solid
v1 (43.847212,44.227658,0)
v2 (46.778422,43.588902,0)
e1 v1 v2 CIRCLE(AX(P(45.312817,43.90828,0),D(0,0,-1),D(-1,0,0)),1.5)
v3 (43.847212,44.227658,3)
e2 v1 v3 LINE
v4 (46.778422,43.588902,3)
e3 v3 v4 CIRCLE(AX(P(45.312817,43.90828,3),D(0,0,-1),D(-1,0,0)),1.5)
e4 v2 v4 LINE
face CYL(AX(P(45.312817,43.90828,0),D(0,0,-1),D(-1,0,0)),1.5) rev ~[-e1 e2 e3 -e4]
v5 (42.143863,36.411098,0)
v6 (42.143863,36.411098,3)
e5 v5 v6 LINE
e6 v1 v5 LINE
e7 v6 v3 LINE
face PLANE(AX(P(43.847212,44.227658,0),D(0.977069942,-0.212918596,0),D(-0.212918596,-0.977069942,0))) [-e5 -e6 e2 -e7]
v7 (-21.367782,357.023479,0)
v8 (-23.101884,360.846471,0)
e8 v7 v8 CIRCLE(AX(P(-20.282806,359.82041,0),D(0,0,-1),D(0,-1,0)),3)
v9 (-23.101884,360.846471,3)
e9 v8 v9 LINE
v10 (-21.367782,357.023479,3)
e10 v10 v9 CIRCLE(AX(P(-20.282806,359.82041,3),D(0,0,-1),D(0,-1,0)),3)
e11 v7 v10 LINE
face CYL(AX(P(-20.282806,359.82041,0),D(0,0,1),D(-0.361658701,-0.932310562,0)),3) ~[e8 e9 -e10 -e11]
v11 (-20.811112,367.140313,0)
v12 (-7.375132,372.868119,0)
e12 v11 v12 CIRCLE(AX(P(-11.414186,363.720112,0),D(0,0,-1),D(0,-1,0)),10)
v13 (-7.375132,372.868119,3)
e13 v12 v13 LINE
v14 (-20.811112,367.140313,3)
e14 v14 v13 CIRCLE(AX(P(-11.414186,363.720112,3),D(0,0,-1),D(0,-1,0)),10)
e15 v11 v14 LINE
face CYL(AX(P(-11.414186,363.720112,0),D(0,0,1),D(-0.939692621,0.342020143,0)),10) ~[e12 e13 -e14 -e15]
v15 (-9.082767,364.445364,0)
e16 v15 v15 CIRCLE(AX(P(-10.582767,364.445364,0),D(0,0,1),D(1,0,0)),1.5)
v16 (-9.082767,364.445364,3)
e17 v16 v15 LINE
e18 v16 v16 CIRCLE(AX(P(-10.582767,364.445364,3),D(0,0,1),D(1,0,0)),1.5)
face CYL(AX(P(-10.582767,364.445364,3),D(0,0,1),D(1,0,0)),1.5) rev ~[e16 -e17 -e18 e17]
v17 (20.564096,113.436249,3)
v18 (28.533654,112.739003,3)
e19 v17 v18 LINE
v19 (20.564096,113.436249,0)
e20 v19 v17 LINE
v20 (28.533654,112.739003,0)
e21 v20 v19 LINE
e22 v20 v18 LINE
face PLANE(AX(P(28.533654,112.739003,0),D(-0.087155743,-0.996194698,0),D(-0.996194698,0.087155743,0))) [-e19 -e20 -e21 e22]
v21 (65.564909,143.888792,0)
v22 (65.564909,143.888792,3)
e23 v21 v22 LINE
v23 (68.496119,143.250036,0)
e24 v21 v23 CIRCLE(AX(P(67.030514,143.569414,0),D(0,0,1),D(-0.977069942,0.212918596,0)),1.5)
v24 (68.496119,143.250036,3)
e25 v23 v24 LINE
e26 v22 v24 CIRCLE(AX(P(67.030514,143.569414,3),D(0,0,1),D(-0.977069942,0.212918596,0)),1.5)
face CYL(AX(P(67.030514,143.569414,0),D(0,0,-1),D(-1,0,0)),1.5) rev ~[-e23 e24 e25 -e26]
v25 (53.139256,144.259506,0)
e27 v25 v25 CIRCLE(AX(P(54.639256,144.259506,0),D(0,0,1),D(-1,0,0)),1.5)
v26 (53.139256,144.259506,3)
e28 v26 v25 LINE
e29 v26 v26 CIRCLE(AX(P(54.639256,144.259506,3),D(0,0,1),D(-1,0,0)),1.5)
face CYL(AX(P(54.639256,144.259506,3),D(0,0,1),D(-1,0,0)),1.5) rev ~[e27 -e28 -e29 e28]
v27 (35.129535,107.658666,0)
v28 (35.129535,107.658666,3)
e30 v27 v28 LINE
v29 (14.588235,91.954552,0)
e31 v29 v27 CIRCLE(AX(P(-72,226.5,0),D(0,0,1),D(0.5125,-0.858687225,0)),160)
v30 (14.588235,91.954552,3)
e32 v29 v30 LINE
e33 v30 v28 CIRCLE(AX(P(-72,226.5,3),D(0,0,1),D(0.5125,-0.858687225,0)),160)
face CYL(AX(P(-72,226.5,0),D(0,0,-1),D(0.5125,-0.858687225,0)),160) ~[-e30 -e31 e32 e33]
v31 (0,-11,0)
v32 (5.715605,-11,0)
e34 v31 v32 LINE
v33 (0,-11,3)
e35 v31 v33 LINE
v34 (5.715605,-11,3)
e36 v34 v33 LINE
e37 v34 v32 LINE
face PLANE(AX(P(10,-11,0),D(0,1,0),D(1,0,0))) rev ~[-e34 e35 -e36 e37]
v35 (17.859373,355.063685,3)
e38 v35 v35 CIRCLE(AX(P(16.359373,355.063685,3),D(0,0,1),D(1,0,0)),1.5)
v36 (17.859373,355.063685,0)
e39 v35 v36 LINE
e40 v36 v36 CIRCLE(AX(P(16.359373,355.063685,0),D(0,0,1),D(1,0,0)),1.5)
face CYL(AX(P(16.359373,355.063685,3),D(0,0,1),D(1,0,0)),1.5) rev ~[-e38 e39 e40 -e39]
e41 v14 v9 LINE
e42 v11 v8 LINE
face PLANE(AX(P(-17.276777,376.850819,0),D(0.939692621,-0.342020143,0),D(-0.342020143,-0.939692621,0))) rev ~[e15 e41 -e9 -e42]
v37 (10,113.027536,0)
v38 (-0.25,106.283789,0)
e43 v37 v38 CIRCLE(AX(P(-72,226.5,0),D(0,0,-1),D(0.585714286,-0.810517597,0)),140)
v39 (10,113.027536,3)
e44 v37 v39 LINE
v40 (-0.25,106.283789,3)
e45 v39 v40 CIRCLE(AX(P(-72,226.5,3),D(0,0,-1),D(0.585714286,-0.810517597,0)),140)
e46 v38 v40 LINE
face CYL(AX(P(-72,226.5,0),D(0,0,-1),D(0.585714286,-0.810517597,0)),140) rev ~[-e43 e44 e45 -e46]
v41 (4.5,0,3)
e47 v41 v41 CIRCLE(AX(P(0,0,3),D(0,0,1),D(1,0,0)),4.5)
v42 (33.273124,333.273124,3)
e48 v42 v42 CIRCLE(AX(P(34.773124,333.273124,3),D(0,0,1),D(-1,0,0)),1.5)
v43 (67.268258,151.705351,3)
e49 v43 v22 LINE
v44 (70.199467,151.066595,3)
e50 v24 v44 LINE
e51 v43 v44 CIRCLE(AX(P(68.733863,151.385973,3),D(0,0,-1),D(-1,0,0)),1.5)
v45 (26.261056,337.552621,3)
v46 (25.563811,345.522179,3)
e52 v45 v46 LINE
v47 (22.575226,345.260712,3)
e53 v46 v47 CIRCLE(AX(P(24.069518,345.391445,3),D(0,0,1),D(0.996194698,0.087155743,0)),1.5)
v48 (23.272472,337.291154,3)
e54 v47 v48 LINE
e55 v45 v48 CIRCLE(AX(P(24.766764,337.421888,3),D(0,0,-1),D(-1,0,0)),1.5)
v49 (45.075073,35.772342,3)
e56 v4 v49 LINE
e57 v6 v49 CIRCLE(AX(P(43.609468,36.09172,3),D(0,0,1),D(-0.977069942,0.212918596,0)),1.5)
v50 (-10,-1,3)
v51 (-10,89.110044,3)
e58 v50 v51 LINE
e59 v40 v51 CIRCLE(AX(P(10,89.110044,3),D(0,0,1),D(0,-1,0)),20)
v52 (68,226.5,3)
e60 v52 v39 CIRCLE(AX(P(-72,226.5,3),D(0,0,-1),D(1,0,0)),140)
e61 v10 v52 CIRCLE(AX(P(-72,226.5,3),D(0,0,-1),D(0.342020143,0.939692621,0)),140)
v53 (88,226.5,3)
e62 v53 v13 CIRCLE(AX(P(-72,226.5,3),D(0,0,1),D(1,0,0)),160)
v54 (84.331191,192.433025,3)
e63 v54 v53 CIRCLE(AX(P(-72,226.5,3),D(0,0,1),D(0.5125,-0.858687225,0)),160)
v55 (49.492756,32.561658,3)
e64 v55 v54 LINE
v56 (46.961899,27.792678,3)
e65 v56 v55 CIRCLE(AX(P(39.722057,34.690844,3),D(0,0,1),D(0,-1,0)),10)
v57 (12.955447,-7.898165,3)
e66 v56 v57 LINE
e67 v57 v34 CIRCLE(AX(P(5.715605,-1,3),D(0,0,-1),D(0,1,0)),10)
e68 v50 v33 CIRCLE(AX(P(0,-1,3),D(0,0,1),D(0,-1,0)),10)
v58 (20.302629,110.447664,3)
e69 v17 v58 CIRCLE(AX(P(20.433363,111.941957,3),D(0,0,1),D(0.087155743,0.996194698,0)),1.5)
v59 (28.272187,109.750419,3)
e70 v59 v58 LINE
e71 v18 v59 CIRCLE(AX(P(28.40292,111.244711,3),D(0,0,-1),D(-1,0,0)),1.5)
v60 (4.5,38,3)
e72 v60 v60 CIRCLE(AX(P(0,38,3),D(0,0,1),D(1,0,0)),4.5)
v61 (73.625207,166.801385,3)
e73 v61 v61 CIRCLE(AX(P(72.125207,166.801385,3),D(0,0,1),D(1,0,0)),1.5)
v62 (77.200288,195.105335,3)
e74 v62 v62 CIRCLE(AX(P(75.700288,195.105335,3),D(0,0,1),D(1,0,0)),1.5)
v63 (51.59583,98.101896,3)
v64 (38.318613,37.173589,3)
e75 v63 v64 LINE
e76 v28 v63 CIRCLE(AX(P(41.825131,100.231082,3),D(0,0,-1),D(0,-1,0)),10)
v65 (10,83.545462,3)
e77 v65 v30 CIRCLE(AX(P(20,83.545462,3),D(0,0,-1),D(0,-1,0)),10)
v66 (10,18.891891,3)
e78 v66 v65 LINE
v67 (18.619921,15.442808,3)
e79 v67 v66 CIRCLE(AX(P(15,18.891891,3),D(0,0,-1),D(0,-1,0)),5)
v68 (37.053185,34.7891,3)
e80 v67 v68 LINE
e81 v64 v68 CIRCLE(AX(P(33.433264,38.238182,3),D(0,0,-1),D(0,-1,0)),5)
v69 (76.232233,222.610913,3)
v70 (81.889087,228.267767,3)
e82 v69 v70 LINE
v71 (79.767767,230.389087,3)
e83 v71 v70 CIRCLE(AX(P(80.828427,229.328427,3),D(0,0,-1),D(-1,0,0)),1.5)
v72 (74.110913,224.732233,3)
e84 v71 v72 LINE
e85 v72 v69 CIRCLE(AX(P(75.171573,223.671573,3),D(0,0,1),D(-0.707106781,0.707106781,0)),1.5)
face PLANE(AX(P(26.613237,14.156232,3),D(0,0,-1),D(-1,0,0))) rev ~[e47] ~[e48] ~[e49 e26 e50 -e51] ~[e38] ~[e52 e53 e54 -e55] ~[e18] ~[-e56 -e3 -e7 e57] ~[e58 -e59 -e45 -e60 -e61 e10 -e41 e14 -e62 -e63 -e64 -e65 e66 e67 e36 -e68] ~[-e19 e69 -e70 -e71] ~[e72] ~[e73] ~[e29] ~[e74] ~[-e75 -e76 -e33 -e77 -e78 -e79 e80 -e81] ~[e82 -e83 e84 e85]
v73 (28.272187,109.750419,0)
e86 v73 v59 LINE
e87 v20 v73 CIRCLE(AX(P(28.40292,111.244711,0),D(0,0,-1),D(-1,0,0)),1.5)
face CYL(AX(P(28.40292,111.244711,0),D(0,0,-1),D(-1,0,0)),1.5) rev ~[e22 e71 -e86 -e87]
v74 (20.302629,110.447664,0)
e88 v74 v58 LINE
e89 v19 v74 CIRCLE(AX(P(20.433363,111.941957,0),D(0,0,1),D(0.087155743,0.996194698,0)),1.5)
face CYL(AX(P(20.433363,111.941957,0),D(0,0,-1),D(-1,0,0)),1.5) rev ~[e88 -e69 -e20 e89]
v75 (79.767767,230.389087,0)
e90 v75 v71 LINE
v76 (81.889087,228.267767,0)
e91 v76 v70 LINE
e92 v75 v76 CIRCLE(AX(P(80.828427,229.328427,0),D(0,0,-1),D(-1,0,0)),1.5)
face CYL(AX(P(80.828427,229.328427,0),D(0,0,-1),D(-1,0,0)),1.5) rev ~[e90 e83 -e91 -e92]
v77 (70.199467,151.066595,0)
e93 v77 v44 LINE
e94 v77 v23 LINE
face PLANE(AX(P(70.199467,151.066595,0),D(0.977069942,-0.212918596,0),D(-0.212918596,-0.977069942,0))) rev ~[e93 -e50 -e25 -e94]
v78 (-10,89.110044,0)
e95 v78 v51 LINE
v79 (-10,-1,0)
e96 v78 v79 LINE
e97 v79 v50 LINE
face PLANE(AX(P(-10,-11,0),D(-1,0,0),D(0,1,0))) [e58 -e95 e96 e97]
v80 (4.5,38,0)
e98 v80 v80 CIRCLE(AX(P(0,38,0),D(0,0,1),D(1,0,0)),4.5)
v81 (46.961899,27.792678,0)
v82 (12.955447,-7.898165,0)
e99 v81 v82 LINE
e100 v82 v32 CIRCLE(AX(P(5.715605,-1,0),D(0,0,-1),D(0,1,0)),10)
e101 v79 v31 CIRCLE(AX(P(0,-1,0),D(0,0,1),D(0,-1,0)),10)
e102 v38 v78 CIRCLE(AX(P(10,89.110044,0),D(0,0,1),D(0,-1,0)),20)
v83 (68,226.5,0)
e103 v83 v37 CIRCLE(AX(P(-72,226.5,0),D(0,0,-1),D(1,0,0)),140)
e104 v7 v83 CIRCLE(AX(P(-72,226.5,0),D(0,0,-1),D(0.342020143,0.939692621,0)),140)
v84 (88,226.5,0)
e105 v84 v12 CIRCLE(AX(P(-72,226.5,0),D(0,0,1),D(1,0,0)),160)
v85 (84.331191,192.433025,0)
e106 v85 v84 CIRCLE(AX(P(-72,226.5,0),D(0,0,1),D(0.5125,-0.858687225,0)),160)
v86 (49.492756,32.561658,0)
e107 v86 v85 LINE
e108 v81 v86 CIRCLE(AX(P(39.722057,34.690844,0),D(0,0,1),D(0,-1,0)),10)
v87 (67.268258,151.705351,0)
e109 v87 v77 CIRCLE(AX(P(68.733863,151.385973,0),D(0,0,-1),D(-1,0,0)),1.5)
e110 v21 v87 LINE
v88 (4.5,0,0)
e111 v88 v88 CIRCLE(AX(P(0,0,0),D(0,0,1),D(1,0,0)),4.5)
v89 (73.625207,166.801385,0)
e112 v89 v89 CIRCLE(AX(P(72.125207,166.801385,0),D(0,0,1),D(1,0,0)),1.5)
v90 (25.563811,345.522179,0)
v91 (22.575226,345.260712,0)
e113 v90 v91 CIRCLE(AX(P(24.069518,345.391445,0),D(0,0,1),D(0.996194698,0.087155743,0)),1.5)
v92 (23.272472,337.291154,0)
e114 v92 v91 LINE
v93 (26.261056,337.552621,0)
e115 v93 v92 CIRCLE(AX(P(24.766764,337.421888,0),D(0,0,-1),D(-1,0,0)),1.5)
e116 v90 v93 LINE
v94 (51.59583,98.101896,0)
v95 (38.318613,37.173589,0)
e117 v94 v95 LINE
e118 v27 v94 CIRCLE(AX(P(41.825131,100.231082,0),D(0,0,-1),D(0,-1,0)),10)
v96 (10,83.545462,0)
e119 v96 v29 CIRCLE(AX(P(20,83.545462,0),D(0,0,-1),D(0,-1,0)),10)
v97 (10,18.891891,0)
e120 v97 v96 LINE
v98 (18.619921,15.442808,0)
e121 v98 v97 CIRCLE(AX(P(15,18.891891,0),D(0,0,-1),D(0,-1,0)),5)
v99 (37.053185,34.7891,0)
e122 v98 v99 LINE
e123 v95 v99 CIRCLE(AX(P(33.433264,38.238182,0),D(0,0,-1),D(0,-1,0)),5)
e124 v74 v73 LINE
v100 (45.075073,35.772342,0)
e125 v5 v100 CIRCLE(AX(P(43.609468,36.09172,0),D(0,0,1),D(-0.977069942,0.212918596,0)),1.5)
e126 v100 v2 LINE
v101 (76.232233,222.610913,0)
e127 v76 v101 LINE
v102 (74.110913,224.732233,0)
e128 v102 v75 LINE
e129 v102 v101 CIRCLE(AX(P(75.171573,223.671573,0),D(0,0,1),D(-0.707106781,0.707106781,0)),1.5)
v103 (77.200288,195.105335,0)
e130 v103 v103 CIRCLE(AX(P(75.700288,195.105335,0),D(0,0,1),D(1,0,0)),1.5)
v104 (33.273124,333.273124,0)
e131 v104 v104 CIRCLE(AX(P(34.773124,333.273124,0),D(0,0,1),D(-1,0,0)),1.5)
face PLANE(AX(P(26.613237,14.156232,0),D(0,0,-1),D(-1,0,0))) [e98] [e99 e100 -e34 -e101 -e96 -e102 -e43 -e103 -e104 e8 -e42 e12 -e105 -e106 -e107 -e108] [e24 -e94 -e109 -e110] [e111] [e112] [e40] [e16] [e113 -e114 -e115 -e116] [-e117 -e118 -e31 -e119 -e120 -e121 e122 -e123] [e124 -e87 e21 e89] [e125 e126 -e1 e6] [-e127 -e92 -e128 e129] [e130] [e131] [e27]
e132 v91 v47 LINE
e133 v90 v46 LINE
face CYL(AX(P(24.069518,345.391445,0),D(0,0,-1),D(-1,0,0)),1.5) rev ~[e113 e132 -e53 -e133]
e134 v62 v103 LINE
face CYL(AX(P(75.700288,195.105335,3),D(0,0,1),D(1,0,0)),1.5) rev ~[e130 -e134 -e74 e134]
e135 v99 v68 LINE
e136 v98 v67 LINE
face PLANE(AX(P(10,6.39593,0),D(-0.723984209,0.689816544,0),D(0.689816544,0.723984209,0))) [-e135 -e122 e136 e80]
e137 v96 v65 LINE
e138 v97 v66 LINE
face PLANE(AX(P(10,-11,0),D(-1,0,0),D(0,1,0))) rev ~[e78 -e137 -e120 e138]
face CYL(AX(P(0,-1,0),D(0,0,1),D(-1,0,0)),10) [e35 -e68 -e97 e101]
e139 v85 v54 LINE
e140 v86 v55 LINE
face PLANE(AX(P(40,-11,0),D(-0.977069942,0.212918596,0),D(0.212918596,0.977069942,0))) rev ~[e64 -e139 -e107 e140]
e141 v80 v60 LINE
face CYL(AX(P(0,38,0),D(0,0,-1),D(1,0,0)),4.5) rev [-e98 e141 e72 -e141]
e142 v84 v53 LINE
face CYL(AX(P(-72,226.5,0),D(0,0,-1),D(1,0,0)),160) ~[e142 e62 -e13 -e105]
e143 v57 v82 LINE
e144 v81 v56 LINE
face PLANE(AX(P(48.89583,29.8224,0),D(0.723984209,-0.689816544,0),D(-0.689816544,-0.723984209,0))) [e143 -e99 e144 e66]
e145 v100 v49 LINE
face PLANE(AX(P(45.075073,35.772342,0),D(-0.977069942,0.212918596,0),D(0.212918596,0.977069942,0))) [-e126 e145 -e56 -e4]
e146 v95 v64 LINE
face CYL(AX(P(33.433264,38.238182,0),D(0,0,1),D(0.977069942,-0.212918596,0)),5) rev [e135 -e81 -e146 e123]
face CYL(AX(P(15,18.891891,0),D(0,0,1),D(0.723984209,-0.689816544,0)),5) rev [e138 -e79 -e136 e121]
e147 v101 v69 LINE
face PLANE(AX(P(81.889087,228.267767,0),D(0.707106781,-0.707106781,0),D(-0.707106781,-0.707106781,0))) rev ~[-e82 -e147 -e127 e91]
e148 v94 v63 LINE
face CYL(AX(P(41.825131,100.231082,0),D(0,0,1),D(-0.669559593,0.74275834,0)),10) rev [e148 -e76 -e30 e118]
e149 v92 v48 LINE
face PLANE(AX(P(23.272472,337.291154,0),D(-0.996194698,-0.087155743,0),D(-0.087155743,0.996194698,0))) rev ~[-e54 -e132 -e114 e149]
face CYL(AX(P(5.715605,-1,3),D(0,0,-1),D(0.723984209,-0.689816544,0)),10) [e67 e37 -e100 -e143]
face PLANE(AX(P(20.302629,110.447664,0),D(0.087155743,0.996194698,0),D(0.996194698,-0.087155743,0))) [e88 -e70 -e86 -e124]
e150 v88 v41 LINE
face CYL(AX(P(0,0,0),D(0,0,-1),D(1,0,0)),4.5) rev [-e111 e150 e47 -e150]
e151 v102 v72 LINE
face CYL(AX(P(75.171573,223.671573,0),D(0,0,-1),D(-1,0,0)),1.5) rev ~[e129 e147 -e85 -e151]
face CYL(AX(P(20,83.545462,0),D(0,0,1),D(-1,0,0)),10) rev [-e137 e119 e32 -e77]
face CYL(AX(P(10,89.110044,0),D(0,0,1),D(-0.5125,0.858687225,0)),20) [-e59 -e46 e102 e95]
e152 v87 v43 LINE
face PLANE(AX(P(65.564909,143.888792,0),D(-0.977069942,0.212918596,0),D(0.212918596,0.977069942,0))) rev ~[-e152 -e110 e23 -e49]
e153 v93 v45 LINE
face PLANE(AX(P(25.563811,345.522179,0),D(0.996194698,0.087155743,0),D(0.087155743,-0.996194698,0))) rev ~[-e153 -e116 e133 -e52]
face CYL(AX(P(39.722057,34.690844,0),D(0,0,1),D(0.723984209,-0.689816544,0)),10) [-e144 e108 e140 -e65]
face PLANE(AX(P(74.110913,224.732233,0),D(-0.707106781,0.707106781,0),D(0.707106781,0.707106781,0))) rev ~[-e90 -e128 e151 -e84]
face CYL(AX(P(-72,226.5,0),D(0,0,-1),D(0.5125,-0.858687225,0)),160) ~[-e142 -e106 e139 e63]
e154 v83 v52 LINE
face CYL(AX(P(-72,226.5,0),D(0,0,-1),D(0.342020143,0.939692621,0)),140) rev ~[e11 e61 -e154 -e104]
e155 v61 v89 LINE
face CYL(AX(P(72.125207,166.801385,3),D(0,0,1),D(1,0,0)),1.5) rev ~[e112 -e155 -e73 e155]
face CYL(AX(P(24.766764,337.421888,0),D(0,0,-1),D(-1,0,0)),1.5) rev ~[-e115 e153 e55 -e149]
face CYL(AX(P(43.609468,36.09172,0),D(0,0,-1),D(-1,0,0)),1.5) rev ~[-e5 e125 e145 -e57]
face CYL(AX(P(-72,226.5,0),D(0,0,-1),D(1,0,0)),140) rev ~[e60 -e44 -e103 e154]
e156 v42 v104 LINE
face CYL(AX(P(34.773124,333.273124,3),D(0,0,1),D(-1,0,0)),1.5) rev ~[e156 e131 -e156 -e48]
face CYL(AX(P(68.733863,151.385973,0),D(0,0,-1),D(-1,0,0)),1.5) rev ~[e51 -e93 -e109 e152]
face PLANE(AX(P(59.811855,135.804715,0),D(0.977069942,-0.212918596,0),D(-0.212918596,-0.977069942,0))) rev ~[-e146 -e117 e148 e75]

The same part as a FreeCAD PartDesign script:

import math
import FreeCAD as App
import Part
import Sketcher

V = App.Vector
Q = App.Units.Quantity


def edges_at(feature, points):
    """Names of the edges that pass closest to the given points."""
    edges = feature.Shape.Edges
    near = lambda p: min(range(len(edges)), key=lambda i: edges[i].distToShape(Part.Vertex(*p))[0])
    return sorted({f"Edge{near(p) + 1}" for p in points})


def add_polygon(sketch, points):
    """Adds a closed chain of lines whose ends are joined by coincident constraints."""
    first, n = sketch.GeometryCount, len(points)
    for a, b in zip(points, points[1:] + points[:1]):
        sketch.addGeometry(Part.LineSegment(App.Vector(*a, 0), App.Vector(*b, 0)), False)
    for i in range(n):
        sketch.addConstraint(Sketcher.Constraint("Coincident", first + i, 2, first + (i + 1) % n, 1))

doc = App.newDocument("Part")
body = doc.addObject("PartDesign::Body", "Body")

# Sketch on XY plane
sketch1 = body.newObject("Sketcher::SketchObject", "Sketch")
sketch1.AttachmentSupport = (doc.getObject("XY_Plane"), [""])
sketch1.MapMode = "FlatFace"
sketch1.addGeometry(Part.ArcOfCircle(Part.Circle(V(-72, 226.5, 0), V(0, 0, 1), 160), math.radians(0), math.radians(70)), False)
sketch1.addGeometry(Part.LineSegment(V(-17.3, 376.9, 0), V(-24.1, 358.1, 0)), False)
sketch1.addGeometry(Part.ArcOfCircle(Part.Circle(V(-72, 226.5, 0), V(0, 0, 1), 140), math.radians(0), math.radians(70)), False)
sketch1.addGeometry(Part.ArcOfCircle(Part.Circle(V(-72, 226.5, 0), V(0, 0, 1), 140), math.radians(-54), math.radians(0)), False)
sketch1.addGeometry(Part.ArcOfCircle(Part.Circle(V(-72, 226.5, 0), V(0, 0, 1), 140), math.radians(-63.71), math.radians(-54.15)), False)
sketch1.addGeometry(Part.LineSegment(V(-10, 101, 0), V(-10, -11, 0)), False)
sketch1.addGeometry(Part.LineSegment(V(-10, -11, 0), V(10, -11, 0)), False)
sketch1.addGeometry(Part.LineSegment(V(10, -11, 0), V(10, 89.1, 0)), False)
sketch1.addGeometry(Part.ArcOfCircle(Part.Circle(V(-72, 226.5, 0), V(0, 0, 1), 160), math.radians(-59), math.radians(0)), False)
sketch1.addGeometry(Part.Circle(V(0, 38, 0), V(0, 0, 1), 4.5), False)
sketch1.addGeometry(Part.Circle(V(0, 0, 0), V(0, 0, 1), 4.5), False)
sketch1.addConstraint(Sketcher.Constraint("Coincident", 0, 2, 1, 1))
sketch1.addConstraint(Sketcher.Constraint("Coincident", 1, 2, 2, 2))
sketch1.addConstraint(Sketcher.Constraint("Tangent", 2, 1, 3, 2))
sketch1.addConstraint(Sketcher.Constraint("Tangent", 3, 1, 4, 2))
sketch1.addConstraint(Sketcher.Constraint("Coincident", 4, 1, 5, 1))
sketch1.addConstraint(Sketcher.Constraint("Coincident", 5, 2, 6, 1))
sketch1.addConstraint(Sketcher.Constraint("Coincident", 6, 2, 7, 1))
sketch1.addConstraint(Sketcher.Constraint("Coincident", 7, 2, 8, 1))
sketch1.addConstraint(Sketcher.Constraint("Tangent", 8, 2, 0, 1))
sketch1.addConstraint(Sketcher.Constraint("Vertical", 5))
sketch1.addConstraint(Sketcher.Constraint("Horizontal", 6))
sketch1.addConstraint(Sketcher.Constraint("Vertical", 7))
sketch1.addConstraint(Sketcher.Constraint("Coincident", 10, 3, -1, 1))
sketch1.addConstraint(Sketcher.Constraint("Coincident", 2, 3, 0, 3))
sketch1.addConstraint(Sketcher.Constraint("Coincident", 4, 3, 0, 3))
sketch1.addConstraint(Sketcher.Constraint("Equal", 0, 8))
sketch1.addConstraint(Sketcher.Constraint("Equal", 9, 10))
sketch1.addConstraint(Sketcher.Constraint("PointOnObject", 9, 3, -2))
sketch1.addConstraint(Sketcher.Constraint("Horizontal", 8, 3, 2, 1))
sketch1.addConstraint(Sketcher.Constraint("Horizontal", 2, 1, 8, 2))
sketch1.addConstraint(Sketcher.Constraint("Vertical", 3, 1, 6, 2))
sketch1.addConstraint(Sketcher.Constraint("Diameter", 9, 9.0))
sketch1.addConstraint(Sketcher.Constraint("Radius", 0, 160.0))
sketch1.addConstraint(Sketcher.Constraint("Radius", 2, 140.0))
sketch1.addConstraint(Sketcher.Constraint("DistanceX", 6, 1, 6, 2, 20.0))
sketch1.addConstraint(Sketcher.Constraint("Angle", 1, Q("-110 deg")))
sketch1.addConstraint(Sketcher.Constraint("DistanceX", 0, 3, -1, 1, 72.0))
sketch1.addConstraint(Sketcher.Constraint("DistanceY", -1, 1, 9, 3, 38.0))
sketch1.addConstraint(Sketcher.Constraint("DistanceX", -1, 1, 3, 1, 10.0))
sketch1.addConstraint(Sketcher.Constraint("DistanceY", 5, 2, -1, 1, 11.0))
sketch1.addConstraint(Sketcher.Constraint("DistanceY", -1, 1, 0, 3, 226.5))
sketch1.addConstraint(Sketcher.Constraint("DistanceY", -1, 1, 0, 2, 376.850819))
pad1 = body.newObject("PartDesign::Pad", "Pad")
pad1.Profile = sketch1
pad1.Length = 3

# Sketch on XY plane
sketch2 = body.newObject("Sketcher::SketchObject", "Sketch001")
sketch2.AttachmentSupport = (doc.getObject("XY_Plane"), [""])
sketch2.MapMode = "FlatFace"
sketch2.addGeometry(Part.LineSegment(V(10, -1, 0), V(10, -11, 0)), False)
sketch2.addGeometry(Part.LineSegment(V(10, -11, 0), V(40, -11, 0)), False)
sketch2.addGeometry(Part.LineSegment(V(40, -11, 0), V(84, 192, 0)), False)
sketch2.addGeometry(Part.ArcOfCircle(Part.Circle(V(-72, 226, 0), V(0, 0, 1), 160), math.radians(-35), math.radians(-12)), False)
sketch2.addGeometry(Part.LineSegment(V(60, 136, 0), V(30, -1, 0)), False)
sketch2.addGeometry(Part.LineSegment(V(30, -1, 0), V(10, -1, 0)), False)
sketch2.addConstraint(Sketcher.Constraint("Coincident", 0, 2, 1, 1))
sketch2.addConstraint(Sketcher.Constraint("Coincident", 1, 2, 2, 1))
sketch2.addConstraint(Sketcher.Constraint("Tangent", 2, 2, 3, 2))
sketch2.addConstraint(Sketcher.Constraint("Coincident", 3, 1, 4, 1))
sketch2.addConstraint(Sketcher.Constraint("Coincident", 4, 2, 5, 1))
sketch2.addConstraint(Sketcher.Constraint("Coincident", 5, 2, 0, 1))
sketch2.addConstraint(Sketcher.Constraint("Vertical", 0))
sketch2.addConstraint(Sketcher.Constraint("Horizontal", 1))
sketch2.addConstraint(Sketcher.Constraint("Horizontal", 5))
sketch2.addConstraint(Sketcher.Constraint("Parallel", 2, 4))
sketch2.addConstraint(Sketcher.Constraint("Radius", 3, 160.0))
sketch2.addConstraint(Sketcher.Constraint("DistanceX", 1, 1, 1, 2, 30.0))
sketch2.addConstraint(Sketcher.Constraint("DistanceX", 5, 2, 5, 1, 20.0))
sketch2.addConstraint(Sketcher.Constraint("DistanceY", 0, 2, 0, 1, 10.0))
sketch2.addConstraint(Sketcher.Constraint("DistanceX", 3, 3, -1, 1, 72.0))
sketch2.addConstraint(Sketcher.Constraint("DistanceX", -1, 1, 0, 2, 10.0))
sketch2.addConstraint(Sketcher.Constraint("DistanceY", 0, 2, -1, 1, 11.0))
sketch2.addConstraint(Sketcher.Constraint("DistanceY", -1, 1, 3, 3, 226.5))
pad2 = body.newObject("PartDesign::Pad", "Pad001")
pad2.Profile = sketch2
pad2.Length = 3
doc.recompute()

fillet = body.newObject("PartDesign::Fillet", "Fillet")
fillet.Base = (pad2, edges_at(pad2, [(-10, 100.977, 1.5)]))
fillet.Radius = 20
doc.recompute()

fillet2 = body.newObject("PartDesign::Fillet", "Fillet001")
fillet2.Base = (fillet, edges_at(fillet, [(-10, -11, 1.5), (40, -11, 1.5)]))
fillet2.Radius = 10
doc.recompute()

fillet3 = body.newObject("PartDesign::Fillet", "Fillet002")
fillet3.Base = (fillet2, edges_at(fillet2, [(-24.117, 358.057, 1.5)]))
fillet3.Radius = 3
doc.recompute()

fillet4 = body.newObject("PartDesign::Fillet", "Fillet003")
fillet4.Base = (fillet3, edges_at(fillet3, [(-17.277, 376.851, 1.5)]))
fillet4.Radius = 10

# Sketch on XY plane
sketch3 = body.newObject("Sketcher::SketchObject", "Sketch002")
sketch3.AttachmentSupport = (doc.getObject("XY_Plane"), [""])
sketch3.MapMode = "FlatFace"
add_polygon(sketch3, [(43.8, 44.2), (46.8, 43.6), (45.1, 35.8), (42.1, 36.4)])  # lines 0-3
add_polygon(sketch3, [(70.2, 151.1), (68.5, 143.3), (65.6, 143.9), (67.3, 151.7)])  # lines 4-7
sketch3.addConstraint(Sketcher.Constraint("Perpendicular", 0, 1))
sketch3.addConstraint(Sketcher.Constraint("Perpendicular", 1, 2))
sketch3.addConstraint(Sketcher.Constraint("Perpendicular", 2, 3))
sketch3.addConstraint(Sketcher.Constraint("Parallel", 3, 4))
sketch3.addConstraint(Sketcher.Constraint("Perpendicular", 4, 5))
sketch3.addConstraint(Sketcher.Constraint("Perpendicular", 5, 6))
sketch3.addConstraint(Sketcher.Constraint("Perpendicular", 6, 7))
sketch3.addConstraint(Sketcher.Constraint("Equal", 3, 4))
sketch3.addConstraint(Sketcher.Constraint("Equal", 2, 5))
sketch3.addConstraint(Sketcher.Constraint("Distance", 0, 3.0))
sketch3.addConstraint(Sketcher.Constraint("Distance", 1, 8.0))
sketch3.addConstraint(Sketcher.Constraint("DistanceY", -1, 1, 0, 2, 43.588902))
sketch3.addConstraint(Sketcher.Constraint("DistanceY", -1, 1, 2, 2, 36.411098))
sketch3.addConstraint(Sketcher.Constraint("DistanceX", -1, 1, 0, 2, 46.778422))
sketch3.addConstraint(Sketcher.Constraint("DistanceX", -1, 1, 4, 2, 68.496119))
sketch3.addConstraint(Sketcher.Constraint("DistanceY", -1, 1, 5, 2, 143.888792))
pocket1 = body.newObject("PartDesign::Pocket", "Pocket")
pocket1.Profile = sketch3
pocket1.Type = "ThroughAll"
pocket1.Reversed = True

# Sketch on XY plane
sketch4 = body.newObject("Sketcher::SketchObject", "Sketch003")
sketch4.AttachmentSupport = (doc.getObject("XY_Plane"), [""])
sketch4.MapMode = "FlatFace"
add_polygon(sketch4, [(28.5, 112.7), (28.3, 109.8), (20.3, 110.4), (20.6, 113.4)])  # lines 0-3
add_polygon(sketch4, [(81.9, 228.3), (76.2, 222.6), (74.1, 224.7), (79.8, 230.4)])  # lines 4-7
add_polygon(sketch4, [(25.6, 345.5), (26.3, 337.6), (23.3, 337.3), (22.6, 345.3)])  # lines 8-11
add_polygon(sketch4, [(-100.5, 377.7), (-93.9, 373.2), (-95.6, 370.7), (-102.2, 375.3)])  # lines 12-15
sketch4.addConstraint(Sketcher.Constraint("Perpendicular", 0, 1))
sketch4.addConstraint(Sketcher.Constraint("Perpendicular", 1, 2))
sketch4.addConstraint(Sketcher.Constraint("Perpendicular", 2, 3))
sketch4.addConstraint(Sketcher.Constraint("Perpendicular", 4, 5))
sketch4.addConstraint(Sketcher.Constraint("Perpendicular", 5, 6))
sketch4.addConstraint(Sketcher.Constraint("Perpendicular", 6, 7))
sketch4.addConstraint(Sketcher.Constraint("Perpendicular", 8, 9))
sketch4.addConstraint(Sketcher.Constraint("Perpendicular", 9, 10))
sketch4.addConstraint(Sketcher.Constraint("Perpendicular", 10, 11))
sketch4.addConstraint(Sketcher.Constraint("Perpendicular", 12, 13))
sketch4.addConstraint(Sketcher.Constraint("Perpendicular", 13, 14))
sketch4.addConstraint(Sketcher.Constraint("Perpendicular", 14, 15))
sketch4.addConstraint(Sketcher.Constraint("Equal", 3, 4))
sketch4.addConstraint(Sketcher.Constraint("Equal", 2, 5))
sketch4.addConstraint(Sketcher.Constraint("Equal", 6, 8))
sketch4.addConstraint(Sketcher.Constraint("Equal", 7, 9))
sketch4.addConstraint(Sketcher.Constraint("Equal", 10, 12))
sketch4.addConstraint(Sketcher.Constraint("Equal", 11, 13))
sketch4.addConstraint(Sketcher.Constraint("Angle", 0, Q("-95 deg")))
sketch4.addConstraint(Sketcher.Constraint("Angle", 4, Q("-135 deg")))
sketch4.addConstraint(Sketcher.Constraint("Angle", 8, Q("-85 deg")))
sketch4.addConstraint(Sketcher.Constraint("Angle", 12, Q("-35 deg")))
sketch4.addConstraint(Sketcher.Constraint("Distance", 0, 3.0))
sketch4.addConstraint(Sketcher.Constraint("Distance", 1, 8.0))
sketch4.addConstraint(Sketcher.Constraint("DistanceX", 14, 2, -1, 1, 102.184199))
sketch4.addConstraint(Sketcher.Constraint("DistanceX", 0, 2, 7, 2, 53.616901))
sketch4.addConstraint(Sketcher.Constraint("DistanceY", -1, 1, 0, 2, 109.750419))
sketch4.addConstraint(Sketcher.Constraint("DistanceX", -1, 1, 1, 2, 20.302629))
sketch4.addConstraint(Sketcher.Constraint("DistanceY", -1, 1, 8, 2, 337.552621))
sketch4.addConstraint(Sketcher.Constraint("DistanceX", -1, 1, 11, 2, 25.563811))
sketch4.addConstraint(Sketcher.Constraint("DistanceY", -1, 1, 13, 2, 370.698129))
sketch4.addConstraint(Sketcher.Constraint("DistanceY", 3, 2, 4, 2, 109.87191))
pocket2 = body.newObject("PartDesign::Pocket", "Pocket001")
pocket2.Profile = sketch4
pocket2.Type = "ThroughAll"
pocket2.Reversed = True

# Sketch on XY plane
sketch5 = body.newObject("Sketcher::SketchObject", "Sketch004")
sketch5.AttachmentSupport = (doc.getObject("XY_Plane"), [""])
sketch5.MapMode = "FlatFace"
sketch5.AttachmentOffset = App.Placement(V(0, 0, 3), App.Rotation())
sketch5.addGeometry(Part.Circle(V(72.1, 166.8, 0), V(0, 0, 1), 1.5), False)
sketch5.addGeometry(Part.Circle(V(75.7, 195.1, 0), V(0, 0, 1), 1.5), False)
sketch5.addGeometry(Part.Circle(V(54.6, 144.3, 0), V(0, 0, 1), 1.5), False)
sketch5.addGeometry(Part.Circle(V(34.8, 333.3, 0), V(0, 0, 1), 1.5), False)
sketch5.addGeometry(Part.Circle(V(16.4, 355.1, 0), V(0, 0, 1), 1.5), False)
sketch5.addGeometry(Part.Circle(V(-10.6, 364.4, 0), V(0, 0, 1), 1.5), False)
sketch5.addConstraint(Sketcher.Constraint("Equal", 0, 1))
sketch5.addConstraint(Sketcher.Constraint("Equal", 1, 2))
sketch5.addConstraint(Sketcher.Constraint("Equal", 2, 3))
sketch5.addConstraint(Sketcher.Constraint("Equal", 3, 4))
sketch5.addConstraint(Sketcher.Constraint("Equal", 4, 5))
sketch5.addConstraint(Sketcher.Constraint("Diameter", 0, 3.0))
sketch5.addConstraint(Sketcher.Constraint("DistanceY", 0, 3, 4, 3, 188.262301))
sketch5.addConstraint(Sketcher.Constraint("DistanceX", 0, 3, 1, 3, 3.575081))
sketch5.addConstraint(Sketcher.Constraint("DistanceY", 0, 3, 1, 3, 28.30395))
sketch5.addConstraint(Sketcher.Constraint("DistanceX", 2, 3, 0, 3, 17.485951))
sketch5.addConstraint(Sketcher.Constraint("DistanceY", 2, 3, 0, 3, 22.541879))
sketch5.addConstraint(Sketcher.Constraint("DistanceY", 1, 3, 3, 3, 138.167789))
sketch5.addConstraint(Sketcher.Constraint("DistanceX", 3, 3, 2, 3, 19.866132))
sketch5.addConstraint(Sketcher.Constraint("DistanceX", 4, 3, 3, 3, 18.413751))
sketch5.addConstraint(Sketcher.Constraint("DistanceX", 5, 3, 4, 3, 26.94214))
sketch5.addConstraint(Sketcher.Constraint("DistanceY", 4, 3, 5, 3, 9.381679))
sketch5.addConstraint(Sketcher.Constraint("DistanceX", -1, 1, 0, 3, 72.125207))
sketch5.addConstraint(Sketcher.Constraint("DistanceY", -1, 1, 0, 3, 166.801385))
pocket3 = body.newObject("PartDesign::Pocket", "Pocket002")
pocket3.Profile = sketch5
pocket3.Type = "ThroughAll"

# Sketch on XY plane
sketch6 = body.newObject("Sketcher::SketchObject", "Sketch005")
sketch6.AttachmentSupport = (doc.getObject("XY_Plane"), [""])
sketch6.MapMode = "FlatFace"
add_polygon(sketch6, [(37, 32), (49, 30), (45, -24), (10, -25), (10, -1)])  # lines 0-4
sketch6.addConstraint(Sketcher.Constraint("Vertical", 3))
sketch6.addConstraint(Sketcher.Constraint("DistanceX", -1, 1, 2, 2, 10.0))
sketch6.addConstraint(Sketcher.Constraint("DistanceY", 3, 2, -1, 1, 1.0))
sketch6.addConstraint(Sketcher.Constraint("DistanceY", -1, 1, 0, 2, 29.8224))
sketch6.addConstraint(Sketcher.Constraint("DistanceX", 1, 2, 0, 2, 4.3515))
sketch6.addConstraint(Sketcher.Constraint("DistanceY", 2, 2, 1, 2, 1.6153))
sketch6.addConstraint(Sketcher.Constraint("DistanceY", 3, 1, 3, 2, 24.455906))
sketch6.addConstraint(Sketcher.Constraint("DistanceX", -1, 1, 0, 2, 48.89583))
sketch6.addConstraint(Sketcher.Constraint("DistanceX", -1, 1, 4, 2, 37.26881))
sketch6.addConstraint(Sketcher.Constraint("Distance", 0, 11.899885))
pocket4 = body.newObject("PartDesign::Pocket", "Pocket003")
pocket4.Profile = sketch6
pocket4.Type = "ThroughAll"
pocket4.Reversed = True

# Sketch on XY plane
sketch7 = body.newObject("Sketcher::SketchObject", "Sketch006")
sketch7.AttachmentSupport = (doc.getObject("XY_Plane"), [""])
sketch7.MapMode = "FlatFace"
add_polygon(sketch7, [(48.9, 29.8), (10, -11), (10, 6.4), (38, 35.8), (37.3, 32.4)])  # lines 0-4
sketch7.addConstraint(Sketcher.Constraint("Vertical", 1))
sketch7.addConstraint(Sketcher.Constraint("Parallel", 0, 2))
sketch7.addConstraint(Sketcher.Constraint("Perpendicular", 3, 4))
sketch7.addConstraint(Sketcher.Constraint("DistanceX", -1, 1, 0, 2, 10.0))
sketch7.addConstraint(Sketcher.Constraint("DistanceY", 0, 2, -1, 1, 11.0))
sketch7.addConstraint(Sketcher.Constraint("DistanceY", 1, 1, 1, 2, 17.39593))
sketch7.addConstraint(Sketcher.Constraint("DistanceY", -1, 1, 4, 2, 29.8224))
sketch7.addConstraint(Sketcher.Constraint("Distance", 0, 56.38576))
sketch7.addConstraint(Sketcher.Constraint("Distance", 3, 3.528769))
sketch7.addConstraint(Sketcher.Constraint("DistanceX", -1, 1, 2, 2, 38.02015))
pad3 = body.newObject("PartDesign::Pad", "Pad002")
pad3.Profile = sketch7
pad3.Length = 3
doc.recompute()

fillet5 = body.newObject("PartDesign::Fillet", "Fillet004")
fillet5.Base = (pad3, edges_at(pad3, [
    (10, 89.11, 1.5),
    (10, -11, 1.5),
    (48.896, 29.822, 1.5),
    (59.812, 135.805, 1.5),
]))
fillet5.Radius = 10
doc.recompute()

fillet6 = body.newObject("PartDesign::Fillet", "Fillet005")
fillet6.Base = (fillet5, edges_at(fillet5, [(38.02, 35.804, 1.5), (10, 6.396, 1.5)]))
fillet6.Radius = 5

# Sketch on XY plane
sketch8 = body.newObject("Sketcher::SketchObject", "Sketch007")
sketch8.AttachmentSupport = (doc.getObject("XY_Plane"), [""])
sketch8.MapMode = "FlatFace"
sketch8.addGeometry(Part.Circle(V(43.6, 36.1, 0), V(0, 0, 1), 1.5), False)
sketch8.addGeometry(Part.Circle(V(45.3, 43.9, 0), V(0, 0, 1), 1.5), False)
sketch8.addGeometry(Part.Circle(V(67, 143.6, 0), V(0, 0, 1), 1.5), False)
sketch8.addGeometry(Part.Circle(V(68.7, 151.4, 0), V(0, 0, 1), 1.5), False)
sketch8.addGeometry(Part.Circle(V(28.4, 111.2, 0), V(0, 0, 1), 1.5), False)
sketch8.addGeometry(Part.Circle(V(20.4, 111.9, 0), V(0, 0, 1), 1.5), False)
sketch8.addGeometry(Part.Circle(V(75.2, 223.7, 0), V(0, 0, 1), 1.5), False)
sketch8.addGeometry(Part.Circle(V(80.8, 229.3, 0), V(0, 0, 1), 1.5), False)
sketch8.addGeometry(Part.Circle(V(24.8, 337.4, 0), V(0, 0, 1), 1.5), False)
sketch8.addGeometry(Part.Circle(V(24.1, 345.4, 0), V(0, 0, 1), 1.5), False)
sketch8.addConstraint(Sketcher.Constraint("Equal", 0, 1))
sketch8.addConstraint(Sketcher.Constraint("Equal", 1, 2))
sketch8.addConstraint(Sketcher.Constraint("Equal", 2, 3))
sketch8.addConstraint(Sketcher.Constraint("Equal", 3, 4))
sketch8.addConstraint(Sketcher.Constraint("Equal", 4, 5))
sketch8.addConstraint(Sketcher.Constraint("Equal", 5, 6))
sketch8.addConstraint(Sketcher.Constraint("Equal", 6, 7))
sketch8.addConstraint(Sketcher.Constraint("Equal", 7, 8))
sketch8.addConstraint(Sketcher.Constraint("Equal", 8, 9))
sketch8.addConstraint(Sketcher.Constraint("Diameter", 0, 3.0))
sketch8.addConstraint(Sketcher.Constraint("DistanceX", 5, 3, 3, 3, 48.3005))
sketch8.addConstraint(Sketcher.Constraint("DistanceY", 3, 3, 6, 3, 72.285599))
sketch8.addConstraint(Sketcher.Constraint("DistanceX", 8, 3, 3, 3, 43.967098))
sketch8.addConstraint(Sketcher.Constraint("DistanceX", -1, 1, 0, 3, 43.609468))
sketch8.addConstraint(Sketcher.Constraint("DistanceY", -1, 1, 0, 3, 36.09172))
sketch8.addConstraint(Sketcher.Constraint("DistanceY", -1, 1, 1, 3, 43.90828))
sketch8.addConstraint(Sketcher.Constraint("DistanceX", -1, 1, 4, 3, 28.40292))
sketch8.addConstraint(Sketcher.Constraint("DistanceY", -1, 1, 4, 3, 111.244711))
sketch8.addConstraint(Sketcher.Constraint("DistanceX", -1, 1, 9, 3, 24.069518))
sketch8.addConstraint(Sketcher.Constraint("DistanceX", 0, 3, 1, 3, 1.703349))
sketch8.addConstraint(Sketcher.Constraint("DistanceX", 2, 3, 3, 3, 1.703349))
sketch8.addConstraint(Sketcher.Constraint("DistanceY", 2, 3, 3, 3, 7.81656))
sketch8.addConstraint(Sketcher.Constraint("DistanceX", 3, 3, 6, 3, 6.43771))
sketch8.addConstraint(Sketcher.Constraint("DistanceY", 5, 3, 7, 3, 117.386471))
sketch8.addConstraint(Sketcher.Constraint("DistanceY", 7, 3, 8, 3, 108.093461))
sketch8.addConstraint(Sketcher.Constraint("DistanceX", 9, 3, 7, 3, 56.758909))
sketch8.addConstraint(Sketcher.Constraint("DistanceY", 7, 3, 9, 3, 116.063018))
sketch8.addConstraint(Sketcher.Constraint("DistanceY", 3, 3, 9, 3, 194.005472))
sketch8.addConstraint(Sketcher.Constraint("DistanceX", -1, 1, 2, 3, 67.030514))
sketch8.addConstraint(Sketcher.Constraint("DistanceY", -1, 1, 2, 3, 143.569414))
pocket5 = body.newObject("PartDesign::Pocket", "Pocket004")
pocket5.Profile = sketch8
pocket5.Type = "ThroughAll"
pocket5.Reversed = True

doc.recompute()
